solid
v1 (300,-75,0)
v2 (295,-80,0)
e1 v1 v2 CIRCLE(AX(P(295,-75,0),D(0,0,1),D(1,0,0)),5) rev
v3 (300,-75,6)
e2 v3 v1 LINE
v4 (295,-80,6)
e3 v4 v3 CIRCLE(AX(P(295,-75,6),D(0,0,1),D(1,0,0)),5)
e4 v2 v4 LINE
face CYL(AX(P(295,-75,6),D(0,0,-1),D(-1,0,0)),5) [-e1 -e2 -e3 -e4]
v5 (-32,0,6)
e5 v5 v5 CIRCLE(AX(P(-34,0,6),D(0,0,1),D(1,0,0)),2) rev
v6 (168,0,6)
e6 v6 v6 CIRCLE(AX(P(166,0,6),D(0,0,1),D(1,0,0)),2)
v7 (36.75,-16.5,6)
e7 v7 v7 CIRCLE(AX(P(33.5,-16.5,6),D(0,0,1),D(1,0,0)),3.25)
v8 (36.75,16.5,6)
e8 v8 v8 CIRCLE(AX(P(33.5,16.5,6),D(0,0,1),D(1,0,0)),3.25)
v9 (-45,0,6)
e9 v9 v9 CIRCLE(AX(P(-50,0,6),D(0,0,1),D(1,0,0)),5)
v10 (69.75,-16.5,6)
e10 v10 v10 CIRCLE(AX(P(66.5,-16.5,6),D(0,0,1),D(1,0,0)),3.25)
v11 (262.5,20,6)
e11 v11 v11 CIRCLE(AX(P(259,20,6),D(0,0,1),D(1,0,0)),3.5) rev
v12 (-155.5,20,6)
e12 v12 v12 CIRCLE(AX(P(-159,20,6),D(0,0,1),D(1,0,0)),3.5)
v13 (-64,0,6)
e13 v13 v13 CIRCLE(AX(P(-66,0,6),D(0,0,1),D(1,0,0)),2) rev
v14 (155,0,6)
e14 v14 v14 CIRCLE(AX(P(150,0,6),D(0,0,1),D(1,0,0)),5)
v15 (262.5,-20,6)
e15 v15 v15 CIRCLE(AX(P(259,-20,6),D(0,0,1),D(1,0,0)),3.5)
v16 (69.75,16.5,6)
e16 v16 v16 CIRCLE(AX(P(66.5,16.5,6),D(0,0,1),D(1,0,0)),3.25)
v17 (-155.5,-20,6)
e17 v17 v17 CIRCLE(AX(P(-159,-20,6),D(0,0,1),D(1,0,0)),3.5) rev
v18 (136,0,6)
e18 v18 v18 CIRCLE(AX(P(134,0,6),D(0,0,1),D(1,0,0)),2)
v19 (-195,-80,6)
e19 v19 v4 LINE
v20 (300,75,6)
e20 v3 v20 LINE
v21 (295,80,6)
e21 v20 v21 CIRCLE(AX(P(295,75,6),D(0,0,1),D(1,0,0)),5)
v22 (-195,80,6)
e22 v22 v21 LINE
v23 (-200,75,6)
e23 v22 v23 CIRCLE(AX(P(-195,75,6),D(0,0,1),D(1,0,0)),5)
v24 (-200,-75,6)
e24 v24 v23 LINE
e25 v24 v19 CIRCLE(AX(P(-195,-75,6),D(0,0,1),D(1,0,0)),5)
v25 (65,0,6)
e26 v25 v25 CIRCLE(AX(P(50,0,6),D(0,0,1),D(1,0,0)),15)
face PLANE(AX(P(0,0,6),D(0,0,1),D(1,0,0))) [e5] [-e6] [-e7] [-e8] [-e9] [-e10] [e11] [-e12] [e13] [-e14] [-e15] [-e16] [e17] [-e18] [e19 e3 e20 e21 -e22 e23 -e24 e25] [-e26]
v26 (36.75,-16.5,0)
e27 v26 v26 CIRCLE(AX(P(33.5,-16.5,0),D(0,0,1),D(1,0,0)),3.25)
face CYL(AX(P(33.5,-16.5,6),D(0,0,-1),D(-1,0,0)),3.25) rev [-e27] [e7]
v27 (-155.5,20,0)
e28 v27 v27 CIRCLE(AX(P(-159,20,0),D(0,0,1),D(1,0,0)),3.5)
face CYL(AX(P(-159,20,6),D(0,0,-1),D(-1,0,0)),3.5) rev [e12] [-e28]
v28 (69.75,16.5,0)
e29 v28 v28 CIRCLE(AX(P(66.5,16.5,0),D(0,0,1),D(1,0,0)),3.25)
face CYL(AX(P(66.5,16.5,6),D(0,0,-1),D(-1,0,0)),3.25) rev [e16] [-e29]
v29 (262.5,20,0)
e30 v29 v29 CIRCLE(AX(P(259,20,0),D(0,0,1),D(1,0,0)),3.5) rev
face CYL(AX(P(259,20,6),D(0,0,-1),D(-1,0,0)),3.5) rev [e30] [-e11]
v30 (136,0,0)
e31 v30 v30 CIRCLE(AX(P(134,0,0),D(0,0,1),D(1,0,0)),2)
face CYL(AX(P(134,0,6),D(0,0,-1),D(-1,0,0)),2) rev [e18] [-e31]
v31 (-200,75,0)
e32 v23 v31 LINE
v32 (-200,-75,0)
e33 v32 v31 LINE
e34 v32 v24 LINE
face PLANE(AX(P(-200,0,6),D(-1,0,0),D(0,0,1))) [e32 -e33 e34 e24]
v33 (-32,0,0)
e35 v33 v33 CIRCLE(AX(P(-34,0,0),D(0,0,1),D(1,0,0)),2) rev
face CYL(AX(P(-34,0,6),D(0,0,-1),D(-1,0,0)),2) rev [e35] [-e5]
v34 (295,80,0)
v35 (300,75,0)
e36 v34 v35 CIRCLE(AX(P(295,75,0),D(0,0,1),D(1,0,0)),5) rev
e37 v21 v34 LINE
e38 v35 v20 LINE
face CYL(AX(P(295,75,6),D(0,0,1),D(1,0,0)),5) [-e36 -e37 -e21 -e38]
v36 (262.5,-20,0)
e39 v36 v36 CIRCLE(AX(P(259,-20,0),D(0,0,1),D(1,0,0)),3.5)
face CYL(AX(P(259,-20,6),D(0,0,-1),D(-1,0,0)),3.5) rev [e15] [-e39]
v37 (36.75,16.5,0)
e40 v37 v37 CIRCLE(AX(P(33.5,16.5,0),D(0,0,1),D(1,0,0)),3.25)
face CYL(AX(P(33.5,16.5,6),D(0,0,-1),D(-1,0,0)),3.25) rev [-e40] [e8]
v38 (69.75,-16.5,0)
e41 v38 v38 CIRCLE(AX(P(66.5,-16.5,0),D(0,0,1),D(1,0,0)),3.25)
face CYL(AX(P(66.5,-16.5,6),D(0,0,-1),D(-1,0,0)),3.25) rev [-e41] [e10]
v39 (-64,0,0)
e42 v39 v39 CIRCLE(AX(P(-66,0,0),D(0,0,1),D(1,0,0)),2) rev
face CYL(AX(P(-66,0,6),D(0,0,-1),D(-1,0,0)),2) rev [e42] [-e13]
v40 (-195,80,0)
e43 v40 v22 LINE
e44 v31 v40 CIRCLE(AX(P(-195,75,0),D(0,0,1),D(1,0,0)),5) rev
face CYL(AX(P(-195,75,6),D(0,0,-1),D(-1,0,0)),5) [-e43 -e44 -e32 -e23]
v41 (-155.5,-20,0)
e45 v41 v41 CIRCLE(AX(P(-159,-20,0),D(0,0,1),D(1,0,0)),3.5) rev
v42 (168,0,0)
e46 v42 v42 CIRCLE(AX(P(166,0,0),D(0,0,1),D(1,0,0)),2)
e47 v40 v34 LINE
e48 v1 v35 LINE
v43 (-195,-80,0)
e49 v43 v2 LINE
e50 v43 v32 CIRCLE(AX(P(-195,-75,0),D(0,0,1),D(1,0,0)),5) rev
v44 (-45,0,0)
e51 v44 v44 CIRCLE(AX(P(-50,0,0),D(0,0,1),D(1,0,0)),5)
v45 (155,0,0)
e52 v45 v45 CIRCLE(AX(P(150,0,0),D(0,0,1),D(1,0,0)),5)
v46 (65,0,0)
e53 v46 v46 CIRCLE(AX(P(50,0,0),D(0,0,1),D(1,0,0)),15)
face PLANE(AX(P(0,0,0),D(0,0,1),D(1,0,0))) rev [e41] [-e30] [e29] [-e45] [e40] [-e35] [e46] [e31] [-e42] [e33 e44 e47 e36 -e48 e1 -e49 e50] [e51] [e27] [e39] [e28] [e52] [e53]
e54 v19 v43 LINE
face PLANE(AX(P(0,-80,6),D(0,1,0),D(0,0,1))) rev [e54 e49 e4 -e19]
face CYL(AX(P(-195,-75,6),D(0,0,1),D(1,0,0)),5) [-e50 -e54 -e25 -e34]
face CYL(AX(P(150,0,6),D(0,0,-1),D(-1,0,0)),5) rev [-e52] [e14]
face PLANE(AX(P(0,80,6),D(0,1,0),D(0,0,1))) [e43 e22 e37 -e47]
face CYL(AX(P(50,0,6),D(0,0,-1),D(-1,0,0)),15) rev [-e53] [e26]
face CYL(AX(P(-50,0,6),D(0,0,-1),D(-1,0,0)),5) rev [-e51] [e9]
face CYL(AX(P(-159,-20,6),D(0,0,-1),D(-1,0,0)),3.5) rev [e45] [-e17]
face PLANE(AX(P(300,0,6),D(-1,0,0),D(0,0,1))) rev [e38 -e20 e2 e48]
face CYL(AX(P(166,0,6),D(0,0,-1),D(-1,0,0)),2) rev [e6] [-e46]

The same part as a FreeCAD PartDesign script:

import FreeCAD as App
import Part
import Sketcher


def edges_at(feature, points):
    """Names of the edges that pass closest to the given points."""
    edges = feature.Shape.Edges
    near = lambda p: min(range(len(edges)), key=lambda i: edges[i].distToShape(Part.Vertex(*p))[0])
    return sorted({f"Edge{near(p) + 1}" for p in points})

doc = App.newDocument("Part")
params = doc.addObject("Spreadsheet::Sheet", "Params")
for row, (alias, value) in enumerate([
    ("sketch1_diameter", "7 mm"),
    ("sketch1_diameter2", "4 mm"),
    ("sketch1_diameter3", "10 mm"),
    ("sketch1_diameter4", "30 mm"),
    ("sketch1_diameter5", "6.5 mm"),
    ("pad1_length", "6 mm"),
    ("fillet_radius", "5 mm"),
], start=1):
    params.set(f"A{row}", alias)
    params.set(f"B{row}", "=" + value)
    params.setAlias(f"B{row}", alias)

body = doc.addObject("PartDesign::Body", "Body")

sketch1 = body.newObject("Sketcher::SketchObject", "Sketch")
sketch1.AttachmentSupport = (doc.getObject("XY_Plane"), [""])
sketch1.MapMode = "FlatFace"
sketch1.addGeometry([
    Part.LineSegment(App.Vector(-200, 80, 0), App.Vector(-200, -80, 0)),
    Part.LineSegment(App.Vector(-200, -80, 0), App.Vector(300, -80, 0)),
    Part.LineSegment(App.Vector(300, -80, 0), App.Vector(300, 80, 0)),
    Part.LineSegment(App.Vector(300, 80, 0), App.Vector(-200, 80, 0)),
    Part.Circle(App.Vector(-159, -20, 0), App.Vector(0, 0, 1), 3.5),
    Part.Circle(App.Vector(33.5, -16.5, 0), App.Vector(0, 0, 1), 3.2),
    Part.Circle(App.Vector(66.5, -16.5, 0), App.Vector(0, 0, 1), 3.2),
    Part.Circle(App.Vector(259, -20, 0), App.Vector(0, 0, 1), 3.5),
    Part.Circle(App.Vector(-66, 0, 0), App.Vector(0, 0, 1), 2),
    Part.Circle(App.Vector(-50, 0, 0), App.Vector(0, 0, 1), 5),
    Part.Circle(App.Vector(-34, 0, 0), App.Vector(0, 0, 1), 2),
    Part.Circle(App.Vector(50, 0, 0), App.Vector(0, 0, 1), 15),
    Part.Circle(App.Vector(-159, 20, 0), App.Vector(0, 0, 1), 3.5),
    Part.Circle(App.Vector(33.5, 16.5, 0), App.Vector(0, 0, 1), 3.2),
    Part.Circle(App.Vector(134, 0, 0), App.Vector(0, 0, 1), 2),
    Part.Circle(App.Vector(150, 0, 0), App.Vector(0, 0, 1), 5),
    Part.Circle(App.Vector(166, 0, 0), App.Vector(0, 0, 1), 2),
    Part.Circle(App.Vector(66.5, 16.5, 0), App.Vector(0, 0, 1), 3.2),
    Part.Circle(App.Vector(259, 20, 0), App.Vector(0, 0, 1), 3.5),
], False)
sketch1.addConstraint([
    Sketcher.Constraint("Coincident", 0, 2, 1, 1),
    Sketcher.Constraint("Coincident", 1, 2, 2, 1),
    Sketcher.Constraint("Coincident", 2, 2, 3, 1),
    Sketcher.Constraint("Coincident", 3, 2, 0, 1),
    Sketcher.Constraint("Vertical", 0),
    Sketcher.Constraint("Horizontal", 1),
    Sketcher.Constraint("Vertical", 2),
    Sketcher.Constraint("Horizontal", 3),
    Sketcher.Constraint("Equal", 5, 6),
    Sketcher.Constraint("Equal", 4, 7),
    Sketcher.Constraint("Equal", 8, 10),
    Sketcher.Constraint("Equal", 7, 12),
    Sketcher.Constraint("Equal", 6, 13),
    Sketcher.Constraint("Equal", 10, 14),
    Sketcher.Constraint("Equal", 9, 15),
    Sketcher.Constraint("Equal", 14, 16),
    Sketcher.Constraint("Equal", 13, 17),
    Sketcher.Constraint("Equal", 12, 18),
    Sketcher.Constraint("Symmetric", 9, 3, 11, 3, -1, 1),
    Sketcher.Constraint("Symmetric", 4, 3, 12, 3, -1),
    Sketcher.Constraint("Symmetric", 5, 3, 13, 3, -1),
    Sketcher.Constraint("Symmetric", 6, 3, 17, 3, -1),
    Sketcher.Constraint("Symmetric", 7, 3, 18, 3, -1),
    Sketcher.Constraint("PointOnObject", 8, 3, -1),
    Sketcher.Constraint("PointOnObject", 9, 3, -1),
    Sketcher.Constraint("PointOnObject", 10, 3, -1),
    Sketcher.Constraint("PointOnObject", 14, 3, -1),
    Sketcher.Constraint("PointOnObject", 15, 3, -1),
    Sketcher.Constraint("PointOnObject", 16, 3, -1),
    Sketcher.Constraint("Horizontal", 5, 3, 6, 3),
    Sketcher.Constraint("Horizontal", 4, 3, 7, 3),
    Sketcher.Constraint("Diameter", 4, 7.0),
    Sketcher.Constraint("Diameter", 8, 4.0),
    Sketcher.Constraint("Diameter", 9, 10.0),
    Sketcher.Constraint("Diameter", 11, 30.0),
    Sketcher.Constraint("Diameter", 5, 6.5),
    Sketcher.Constraint("DistanceX", 1, 1, 1, 2, 500.0),
    Sketcher.Constraint("DistanceY", 0, 2, 0, 1, 160.0),
    Sketcher.Constraint("DistanceX", 4, 3, -1, 1, 159.0),
    Sketcher.Constraint("DistanceY", 4, 3, -1, 1, 20.0),
    Sketcher.Constraint("DistanceX", -1, 1, 7, 3, 259.0),
    Sketcher.Constraint("DistanceX", 8, 3, -1, 1, 66.0),
    Sketcher.Constraint("DistanceX", 9, 3, -1, 1, 50.0),
    Sketcher.Constraint("DistanceX", 10, 3, -1, 1, 34.0),
    Sketcher.Constraint("DistanceX", -1, 1, 14, 3, 134.0),
    Sketcher.Constraint("DistanceX", -1, 1, 15, 3, 150.0),
    Sketcher.Constraint("DistanceX", -1, 1, 16, 3, 166.0),
    Sketcher.Constraint("DistanceX", 0, 2, -1, 1, 200.0),
    Sketcher.Constraint("DistanceY", 0, 2, -1, 1, 80.0),
    Sketcher.Constraint("DistanceX", 5, 3, 6, 3, 33.0),
    Sketcher.Constraint("DistanceY", 5, 3, 13, 3, 33.0),
    Sketcher.Constraint("DistanceX", -1, 1, 5, 3, 33.5),
])
sketch1.setExpression("Constraints[31]", "Params.sketch1_diameter")
sketch1.setExpression("Constraints[32]", "Params.sketch1_diameter2")
sketch1.setExpression("Constraints[33]", "Params.sketch1_diameter3")
sketch1.setExpression("Constraints[34]", "Params.sketch1_diameter4")
sketch1.setExpression("Constraints[35]", "Params.sketch1_diameter5")
pad1 = body.newObject("PartDesign::Pad", "Pad")
pad1.Profile = sketch1
pad1.setExpression("Length", "Params.pad1_length")
doc.recompute()

fillet = body.newObject("PartDesign::Fillet", "Fillet")
fillet.Base = (pad1, edges_at(pad1, [
    (-200, -80, 3),
    (-200, 80, 3),
    (300, 80, 3),
    (300, -80, 3),
]))
fillet.setExpression("Radius", "Params.fillet_radius")

doc.recompute()
